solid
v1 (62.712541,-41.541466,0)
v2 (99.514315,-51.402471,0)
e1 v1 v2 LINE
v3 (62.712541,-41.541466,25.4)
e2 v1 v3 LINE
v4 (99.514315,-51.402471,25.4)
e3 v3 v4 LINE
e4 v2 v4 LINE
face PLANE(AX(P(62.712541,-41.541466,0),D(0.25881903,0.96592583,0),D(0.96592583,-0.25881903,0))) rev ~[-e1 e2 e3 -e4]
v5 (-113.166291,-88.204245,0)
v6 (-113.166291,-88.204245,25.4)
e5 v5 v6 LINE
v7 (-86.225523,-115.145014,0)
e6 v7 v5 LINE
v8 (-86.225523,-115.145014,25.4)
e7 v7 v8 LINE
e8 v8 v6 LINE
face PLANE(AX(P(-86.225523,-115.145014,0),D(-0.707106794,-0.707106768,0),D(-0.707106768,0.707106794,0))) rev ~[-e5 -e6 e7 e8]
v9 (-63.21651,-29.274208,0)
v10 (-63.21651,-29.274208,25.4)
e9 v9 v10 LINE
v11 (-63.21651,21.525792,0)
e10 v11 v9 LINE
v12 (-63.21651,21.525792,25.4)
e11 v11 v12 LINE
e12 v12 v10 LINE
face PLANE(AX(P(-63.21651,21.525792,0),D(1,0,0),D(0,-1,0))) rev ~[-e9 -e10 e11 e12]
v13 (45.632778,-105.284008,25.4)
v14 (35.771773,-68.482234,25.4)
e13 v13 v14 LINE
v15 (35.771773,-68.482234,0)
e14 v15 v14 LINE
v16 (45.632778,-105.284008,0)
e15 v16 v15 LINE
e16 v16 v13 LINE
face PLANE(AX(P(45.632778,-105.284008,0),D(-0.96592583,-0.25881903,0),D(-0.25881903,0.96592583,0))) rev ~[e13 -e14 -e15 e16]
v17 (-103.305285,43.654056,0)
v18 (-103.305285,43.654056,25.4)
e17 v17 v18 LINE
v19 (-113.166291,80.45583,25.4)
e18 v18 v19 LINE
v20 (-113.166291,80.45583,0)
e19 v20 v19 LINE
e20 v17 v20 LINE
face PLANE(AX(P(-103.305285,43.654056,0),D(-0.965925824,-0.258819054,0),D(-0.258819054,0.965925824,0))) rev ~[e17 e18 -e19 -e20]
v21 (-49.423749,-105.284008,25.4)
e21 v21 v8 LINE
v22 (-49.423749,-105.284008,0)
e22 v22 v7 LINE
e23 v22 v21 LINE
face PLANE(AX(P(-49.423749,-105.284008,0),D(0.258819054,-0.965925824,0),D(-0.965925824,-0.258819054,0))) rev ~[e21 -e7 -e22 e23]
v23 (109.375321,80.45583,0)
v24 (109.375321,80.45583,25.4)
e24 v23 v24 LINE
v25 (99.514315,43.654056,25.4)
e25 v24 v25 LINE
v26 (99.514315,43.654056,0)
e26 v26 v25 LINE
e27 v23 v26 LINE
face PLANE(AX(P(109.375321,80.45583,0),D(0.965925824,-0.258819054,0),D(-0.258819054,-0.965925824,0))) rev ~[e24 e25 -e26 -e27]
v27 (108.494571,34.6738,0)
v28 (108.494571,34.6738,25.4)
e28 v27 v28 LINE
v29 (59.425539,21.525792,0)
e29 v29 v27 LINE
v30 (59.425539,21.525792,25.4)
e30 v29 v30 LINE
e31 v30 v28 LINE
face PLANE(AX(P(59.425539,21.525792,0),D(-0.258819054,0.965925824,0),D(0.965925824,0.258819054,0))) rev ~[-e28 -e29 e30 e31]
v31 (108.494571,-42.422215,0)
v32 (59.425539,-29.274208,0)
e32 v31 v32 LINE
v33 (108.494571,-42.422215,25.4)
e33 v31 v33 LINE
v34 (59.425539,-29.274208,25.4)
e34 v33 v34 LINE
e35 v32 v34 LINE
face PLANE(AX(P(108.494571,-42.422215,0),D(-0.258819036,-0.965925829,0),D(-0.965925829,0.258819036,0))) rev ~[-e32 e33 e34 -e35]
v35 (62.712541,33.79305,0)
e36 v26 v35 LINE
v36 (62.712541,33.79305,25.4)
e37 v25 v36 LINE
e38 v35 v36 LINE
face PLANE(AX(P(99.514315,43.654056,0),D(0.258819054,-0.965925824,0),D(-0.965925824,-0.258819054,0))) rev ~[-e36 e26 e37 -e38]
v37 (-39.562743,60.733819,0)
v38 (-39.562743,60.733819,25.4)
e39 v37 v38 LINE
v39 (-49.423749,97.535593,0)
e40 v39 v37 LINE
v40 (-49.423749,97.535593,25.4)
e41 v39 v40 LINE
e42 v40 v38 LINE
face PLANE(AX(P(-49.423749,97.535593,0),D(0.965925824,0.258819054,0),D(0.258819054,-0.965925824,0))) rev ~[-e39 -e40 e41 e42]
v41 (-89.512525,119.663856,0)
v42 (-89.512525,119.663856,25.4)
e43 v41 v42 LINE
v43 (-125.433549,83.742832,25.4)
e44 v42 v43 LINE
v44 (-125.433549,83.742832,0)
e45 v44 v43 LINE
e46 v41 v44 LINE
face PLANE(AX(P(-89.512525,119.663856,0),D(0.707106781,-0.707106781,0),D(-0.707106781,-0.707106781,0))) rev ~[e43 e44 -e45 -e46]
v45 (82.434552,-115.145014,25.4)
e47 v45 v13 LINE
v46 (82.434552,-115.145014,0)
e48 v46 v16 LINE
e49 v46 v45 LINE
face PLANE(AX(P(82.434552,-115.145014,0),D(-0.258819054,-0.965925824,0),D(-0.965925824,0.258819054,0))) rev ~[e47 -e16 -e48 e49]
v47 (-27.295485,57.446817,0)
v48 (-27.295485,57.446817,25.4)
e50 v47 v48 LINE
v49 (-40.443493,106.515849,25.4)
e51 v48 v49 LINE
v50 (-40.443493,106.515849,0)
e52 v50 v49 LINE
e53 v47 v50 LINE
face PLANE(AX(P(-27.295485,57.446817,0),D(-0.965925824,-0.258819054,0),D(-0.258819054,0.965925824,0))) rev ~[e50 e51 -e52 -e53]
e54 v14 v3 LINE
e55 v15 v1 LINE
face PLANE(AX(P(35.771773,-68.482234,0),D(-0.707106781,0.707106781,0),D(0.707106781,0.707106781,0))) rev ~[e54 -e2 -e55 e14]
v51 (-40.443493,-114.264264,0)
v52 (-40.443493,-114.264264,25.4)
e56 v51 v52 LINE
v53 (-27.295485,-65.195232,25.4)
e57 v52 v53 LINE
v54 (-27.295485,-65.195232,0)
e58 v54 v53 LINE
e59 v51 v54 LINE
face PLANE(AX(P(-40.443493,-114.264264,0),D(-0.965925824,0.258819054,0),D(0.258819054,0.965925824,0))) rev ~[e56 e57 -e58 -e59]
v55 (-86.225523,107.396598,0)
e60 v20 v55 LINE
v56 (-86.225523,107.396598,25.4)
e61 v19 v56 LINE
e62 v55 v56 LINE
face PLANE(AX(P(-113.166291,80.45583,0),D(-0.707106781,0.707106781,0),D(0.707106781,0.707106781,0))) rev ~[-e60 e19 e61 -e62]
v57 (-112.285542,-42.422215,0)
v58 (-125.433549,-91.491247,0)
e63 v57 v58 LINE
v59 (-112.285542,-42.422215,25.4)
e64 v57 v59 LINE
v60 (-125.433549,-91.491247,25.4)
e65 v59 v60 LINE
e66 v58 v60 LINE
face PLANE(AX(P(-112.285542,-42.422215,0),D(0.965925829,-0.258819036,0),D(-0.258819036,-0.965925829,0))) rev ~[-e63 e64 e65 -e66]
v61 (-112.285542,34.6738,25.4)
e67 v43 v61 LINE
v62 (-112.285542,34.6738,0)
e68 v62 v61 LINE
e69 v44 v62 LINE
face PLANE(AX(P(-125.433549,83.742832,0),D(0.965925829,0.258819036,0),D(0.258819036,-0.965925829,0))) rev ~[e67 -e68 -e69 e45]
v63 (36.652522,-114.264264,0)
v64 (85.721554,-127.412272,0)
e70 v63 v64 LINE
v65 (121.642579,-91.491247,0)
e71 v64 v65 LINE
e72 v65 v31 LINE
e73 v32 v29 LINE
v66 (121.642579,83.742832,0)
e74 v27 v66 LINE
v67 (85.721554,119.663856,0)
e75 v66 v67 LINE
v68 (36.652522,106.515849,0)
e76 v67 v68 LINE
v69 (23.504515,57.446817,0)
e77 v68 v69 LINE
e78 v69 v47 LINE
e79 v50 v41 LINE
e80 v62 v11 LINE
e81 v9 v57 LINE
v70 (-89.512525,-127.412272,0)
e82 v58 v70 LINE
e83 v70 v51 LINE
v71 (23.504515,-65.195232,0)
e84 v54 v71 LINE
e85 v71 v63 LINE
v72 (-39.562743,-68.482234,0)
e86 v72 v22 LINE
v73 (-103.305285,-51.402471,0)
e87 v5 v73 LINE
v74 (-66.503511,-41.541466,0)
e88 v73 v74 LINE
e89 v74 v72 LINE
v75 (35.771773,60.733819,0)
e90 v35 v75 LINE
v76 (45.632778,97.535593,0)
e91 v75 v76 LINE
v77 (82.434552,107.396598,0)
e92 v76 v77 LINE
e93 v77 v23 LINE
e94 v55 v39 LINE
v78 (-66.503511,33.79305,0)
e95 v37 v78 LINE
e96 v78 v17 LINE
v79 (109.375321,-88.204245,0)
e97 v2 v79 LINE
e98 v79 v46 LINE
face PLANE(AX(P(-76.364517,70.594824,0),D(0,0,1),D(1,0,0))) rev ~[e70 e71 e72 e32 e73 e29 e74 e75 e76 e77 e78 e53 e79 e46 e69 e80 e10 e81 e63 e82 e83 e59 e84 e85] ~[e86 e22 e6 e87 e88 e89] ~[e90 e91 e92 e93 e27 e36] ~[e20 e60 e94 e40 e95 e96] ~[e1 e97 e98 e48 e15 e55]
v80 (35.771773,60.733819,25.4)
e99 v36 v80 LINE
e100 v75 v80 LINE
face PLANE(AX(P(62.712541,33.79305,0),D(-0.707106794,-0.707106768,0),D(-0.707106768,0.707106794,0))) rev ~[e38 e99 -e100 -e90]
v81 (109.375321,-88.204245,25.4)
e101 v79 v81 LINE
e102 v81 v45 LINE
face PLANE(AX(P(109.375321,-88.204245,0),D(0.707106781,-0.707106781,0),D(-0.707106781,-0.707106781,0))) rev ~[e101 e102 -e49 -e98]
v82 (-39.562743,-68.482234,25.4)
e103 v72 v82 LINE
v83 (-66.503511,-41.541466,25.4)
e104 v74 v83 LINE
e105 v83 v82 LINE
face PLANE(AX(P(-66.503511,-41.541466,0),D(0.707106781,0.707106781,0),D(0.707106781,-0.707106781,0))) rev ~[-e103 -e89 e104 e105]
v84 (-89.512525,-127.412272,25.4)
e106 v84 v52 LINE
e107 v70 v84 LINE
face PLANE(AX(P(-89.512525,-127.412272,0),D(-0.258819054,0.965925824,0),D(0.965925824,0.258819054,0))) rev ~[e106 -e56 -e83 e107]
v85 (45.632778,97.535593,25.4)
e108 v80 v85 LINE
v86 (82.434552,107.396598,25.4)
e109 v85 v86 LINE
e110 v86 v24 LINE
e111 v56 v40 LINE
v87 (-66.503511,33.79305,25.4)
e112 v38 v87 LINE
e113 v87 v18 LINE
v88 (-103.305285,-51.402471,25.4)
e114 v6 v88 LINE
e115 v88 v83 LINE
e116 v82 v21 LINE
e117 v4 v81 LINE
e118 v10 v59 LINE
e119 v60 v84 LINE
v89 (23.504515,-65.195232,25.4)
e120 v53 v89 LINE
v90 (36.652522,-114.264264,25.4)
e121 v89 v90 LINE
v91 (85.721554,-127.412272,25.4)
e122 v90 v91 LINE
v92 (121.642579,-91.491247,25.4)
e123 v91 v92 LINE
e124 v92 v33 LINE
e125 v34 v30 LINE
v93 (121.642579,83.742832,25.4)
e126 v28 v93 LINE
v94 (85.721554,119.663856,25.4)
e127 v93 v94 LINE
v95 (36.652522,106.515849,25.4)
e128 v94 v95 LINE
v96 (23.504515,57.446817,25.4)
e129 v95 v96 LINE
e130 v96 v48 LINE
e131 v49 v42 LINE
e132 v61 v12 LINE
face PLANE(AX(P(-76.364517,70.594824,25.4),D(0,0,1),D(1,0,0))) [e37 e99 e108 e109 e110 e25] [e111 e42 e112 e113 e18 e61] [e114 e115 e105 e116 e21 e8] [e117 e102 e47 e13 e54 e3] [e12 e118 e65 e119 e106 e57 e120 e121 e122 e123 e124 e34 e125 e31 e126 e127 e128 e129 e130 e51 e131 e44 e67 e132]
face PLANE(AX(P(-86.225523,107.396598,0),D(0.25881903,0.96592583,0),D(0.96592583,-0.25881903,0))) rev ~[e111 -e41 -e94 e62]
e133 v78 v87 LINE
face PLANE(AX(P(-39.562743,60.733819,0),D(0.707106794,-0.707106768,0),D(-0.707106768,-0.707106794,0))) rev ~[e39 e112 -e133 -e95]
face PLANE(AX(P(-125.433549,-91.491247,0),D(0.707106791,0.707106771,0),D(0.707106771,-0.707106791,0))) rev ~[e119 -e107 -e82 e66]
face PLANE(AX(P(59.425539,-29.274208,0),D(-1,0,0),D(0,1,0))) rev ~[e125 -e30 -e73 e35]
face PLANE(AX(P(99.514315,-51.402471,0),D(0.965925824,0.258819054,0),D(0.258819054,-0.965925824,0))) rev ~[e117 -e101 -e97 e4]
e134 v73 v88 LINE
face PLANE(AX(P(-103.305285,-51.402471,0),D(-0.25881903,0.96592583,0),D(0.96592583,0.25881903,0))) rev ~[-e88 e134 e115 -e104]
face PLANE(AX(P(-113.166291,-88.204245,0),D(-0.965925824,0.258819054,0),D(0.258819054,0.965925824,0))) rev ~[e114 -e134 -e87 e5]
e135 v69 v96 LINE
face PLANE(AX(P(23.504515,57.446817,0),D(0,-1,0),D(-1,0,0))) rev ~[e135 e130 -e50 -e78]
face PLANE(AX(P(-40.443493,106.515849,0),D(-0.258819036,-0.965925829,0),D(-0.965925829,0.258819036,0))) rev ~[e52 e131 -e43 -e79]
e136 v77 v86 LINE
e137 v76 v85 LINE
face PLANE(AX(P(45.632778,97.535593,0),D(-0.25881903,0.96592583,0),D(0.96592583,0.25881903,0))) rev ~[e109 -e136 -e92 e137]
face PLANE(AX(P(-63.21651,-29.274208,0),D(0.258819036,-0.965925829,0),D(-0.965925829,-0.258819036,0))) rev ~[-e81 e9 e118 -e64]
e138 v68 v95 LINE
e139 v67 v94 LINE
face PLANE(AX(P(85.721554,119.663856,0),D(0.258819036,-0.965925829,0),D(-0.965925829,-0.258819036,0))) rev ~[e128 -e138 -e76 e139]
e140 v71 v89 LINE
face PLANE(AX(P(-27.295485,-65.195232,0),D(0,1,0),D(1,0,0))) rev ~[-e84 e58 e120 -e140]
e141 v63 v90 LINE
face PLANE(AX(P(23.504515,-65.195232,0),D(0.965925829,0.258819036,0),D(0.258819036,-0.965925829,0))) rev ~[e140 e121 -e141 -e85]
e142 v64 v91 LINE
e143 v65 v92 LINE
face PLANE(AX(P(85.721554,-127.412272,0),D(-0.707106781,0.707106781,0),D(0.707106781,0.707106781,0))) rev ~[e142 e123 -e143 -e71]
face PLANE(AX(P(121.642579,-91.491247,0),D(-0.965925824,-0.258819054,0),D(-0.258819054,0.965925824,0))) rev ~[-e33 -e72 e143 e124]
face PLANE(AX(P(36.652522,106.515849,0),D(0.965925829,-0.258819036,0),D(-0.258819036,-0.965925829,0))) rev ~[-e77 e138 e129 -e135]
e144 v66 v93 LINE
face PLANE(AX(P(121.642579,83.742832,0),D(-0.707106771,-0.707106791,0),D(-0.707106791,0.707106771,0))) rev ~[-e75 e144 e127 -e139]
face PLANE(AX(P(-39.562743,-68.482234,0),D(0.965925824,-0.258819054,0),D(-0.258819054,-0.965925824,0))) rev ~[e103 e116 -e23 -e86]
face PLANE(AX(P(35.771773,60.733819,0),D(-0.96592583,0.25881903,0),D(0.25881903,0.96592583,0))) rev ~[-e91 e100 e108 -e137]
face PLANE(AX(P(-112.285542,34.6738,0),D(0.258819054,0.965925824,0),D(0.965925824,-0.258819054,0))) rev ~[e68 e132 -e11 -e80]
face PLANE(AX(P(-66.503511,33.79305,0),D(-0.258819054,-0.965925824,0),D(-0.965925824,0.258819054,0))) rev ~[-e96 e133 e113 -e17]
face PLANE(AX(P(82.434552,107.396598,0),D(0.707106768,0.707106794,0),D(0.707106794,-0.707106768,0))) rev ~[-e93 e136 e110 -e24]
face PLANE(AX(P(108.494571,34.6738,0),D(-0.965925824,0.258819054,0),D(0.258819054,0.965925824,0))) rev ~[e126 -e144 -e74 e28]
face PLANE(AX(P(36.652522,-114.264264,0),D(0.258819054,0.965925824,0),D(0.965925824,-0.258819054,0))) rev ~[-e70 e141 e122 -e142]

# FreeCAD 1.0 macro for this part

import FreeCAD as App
import Part
import Sketcher

V = App.Vector
Q = App.Units.Quantity


def add_polygon(sketch, points):
    """Adds a closed chain of lines whose ends are joined by coincident constraints."""
    first, n = sketch.GeometryCount, len(points)
    for a, b in zip(points, points[1:] + points[:1]):
        sketch.addGeometry(Part.LineSegment(App.Vector(*a, 0), App.Vector(*b, 0)), False)
    for i in range(n):
        sketch.addConstraint(Sketcher.Constraint("Coincident", first + i, 2, first + (i + 1) % n, 1))

doc = App.newDocument("Part")
body = doc.addObject("PartDesign::Body", "Body")

sketch1 = body.newObject("Sketcher::SketchObject", "Sketch")
sketch1.AttachmentSupport = (doc.getObject("XY_Plane"), [""])
sketch1.MapMode = "FlatFace"
add_polygon(sketch1, [(-112.285542, 34.6738), (-63.21651, 21.525792), (-63.21651, -29.274208), (-112.285542, -42.422215), (-125.433549, -91.491247), (-89.512525, -127.412272), (-40.443493, -114.264264), (-27.295485, -65.195232), (23.504515, -65.195232), (36.652522, -114.264264), (85.721554, -127.412272), (121.642579, -91.491247), (108.494571, -42.422215), (59.425539, -29.274208), (59.425539, 21.525792), (108.494571, 34.6738), (121.642579, 83.742832), (85.721554, 119.663856), (36.652522, 106.515849), (23.504515, 57.446817), (-27.295485, 57.446817), (-40.443493, 106.515849), (-89.512525, 119.663856), (-125.433549, 83.742832)])
add_polygon(sketch1, [(-86.225523, -115.145014), (-113.166291, -88.204245), (-103.305285, -51.402471), (-66.503511, -41.541466), (-39.562743, -68.482234), (-49.423749, -105.284008)])
add_polygon(sketch1, [(45.632778, -105.284008), (35.771773, -68.482234), (62.712541, -41.541466), (99.514315, -51.402471), (109.375321, -88.204245), (82.434552, -115.145014)])
add_polygon(sketch1, [(-113.166291, 80.45583), (-86.225523, 107.396598), (-49.423749, 97.535593), (-39.562743, 60.733819), (-66.503511, 33.79305), (-103.305285, 43.654056)])
add_polygon(sketch1, [(35.771773, 60.733819), (45.632778, 97.535593), (82.434552, 107.396598), (109.375321, 80.45583), (99.514315, 43.654056), (62.712541, 33.79305)])
sketch1.addConstraint(Sketcher.Constraint("Vertical", 1))
sketch1.addConstraint(Sketcher.Constraint("Horizontal", 7))
sketch1.addConstraint(Sketcher.Constraint("Vertical", 13))
sketch1.addConstraint(Sketcher.Constraint("Horizontal", 19))
sketch1.addConstraint(Sketcher.Constraint("Perpendicular", 0, 3))
sketch1.addConstraint(Sketcher.Constraint("Parallel", 2, 5))
sketch1.addConstraint(Sketcher.Constraint("Parallel", 3, 6))
sketch1.addConstraint(Sketcher.Constraint("Perpendicular", 5, 8))
sketch1.addConstraint(Sketcher.Constraint("Perpendicular", 6, 9))
sketch1.addConstraint(Sketcher.Constraint("Perpendicular", 4, 10))
sketch1.addConstraint(Sketcher.Constraint("Parallel", 8, 11))
sketch1.addConstraint(Sketcher.Constraint("Parallel", 9, 12))
sketch1.addConstraint(Sketcher.Constraint("Perpendicular", 11, 14))
sketch1.addConstraint(Sketcher.Constraint("Perpendicular", 12, 15))
sketch1.addConstraint(Sketcher.Constraint("Perpendicular", 10, 16))
sketch1.addConstraint(Sketcher.Constraint("Parallel", 14, 17))
sketch1.addConstraint(Sketcher.Constraint("Parallel", 15, 18))
sketch1.addConstraint(Sketcher.Constraint("Perpendicular", 17, 20))
sketch1.addConstraint(Sketcher.Constraint("Perpendicular", 18, 21))
sketch1.addConstraint(Sketcher.Constraint("Perpendicular", 16, 22))
sketch1.addConstraint(Sketcher.Constraint("Parallel", 20, 23))
sketch1.addConstraint(Sketcher.Constraint("Perpendicular", 22, 24))
sketch1.addConstraint(Sketcher.Constraint("Perpendicular", 21, 25))
sketch1.addConstraint(Sketcher.Constraint("Perpendicular", 23, 26))
sketch1.addConstraint(Sketcher.Constraint("Parallel", 24, 27))
sketch1.addConstraint(Sketcher.Constraint("Parallel", 25, 28))
sketch1.addConstraint(Sketcher.Constraint("Parallel", 26, 29))
sketch1.addConstraint(Sketcher.Constraint("Perpendicular", 29, 30))
sketch1.addConstraint(Sketcher.Constraint("Perpendicular", 27, 31))
sketch1.addConstraint(Sketcher.Constraint("Perpendicular", 28, 32))
sketch1.addConstraint(Sketcher.Constraint("Parallel", 30, 33))
sketch1.addConstraint(Sketcher.Constraint("Parallel", 31, 34))
sketch1.addConstraint(Sketcher.Constraint("Parallel", 32, 35))
sketch1.addConstraint(Sketcher.Constraint("Parallel", 34, 36))
sketch1.addConstraint(Sketcher.Constraint("Parallel", 35, 37))
sketch1.addConstraint(Sketcher.Constraint("Parallel", 33, 38))
sketch1.addConstraint(Sketcher.Constraint("Parallel", 36, 39))
sketch1.addConstraint(Sketcher.Constraint("Parallel", 37, 40))
sketch1.addConstraint(Sketcher.Constraint("Parallel", 38, 41))
sketch1.addConstraint(Sketcher.Constraint("Perpendicular", 40, 42))
sketch1.addConstraint(Sketcher.Constraint("Perpendicular", 41, 43))
sketch1.addConstraint(Sketcher.Constraint("Perpendicular", 39, 44))
sketch1.addConstraint(Sketcher.Constraint("Parallel", 42, 45))
sketch1.addConstraint(Sketcher.Constraint("Parallel", 43, 46))
sketch1.addConstraint(Sketcher.Constraint("Parallel", 44, 47))
sketch1.addConstraint(Sketcher.Constraint("Horizontal", 5, 2, 8, 2))
sketch1.addConstraint(Sketcher.Constraint("Horizontal", 4, 2, 9, 2))
sketch1.addConstraint(Sketcher.Constraint("Horizontal", 3, 2, 10, 2))
sketch1.addConstraint(Sketcher.Constraint("Horizontal", 2, 2, 11, 2))
sketch1.addConstraint(Sketcher.Constraint("Horizontal", 1, 2, 12, 2))
sketch1.addConstraint(Sketcher.Constraint("Horizontal", 0, 2, 13, 2))
sketch1.addConstraint(Sketcher.Constraint("Horizontal", 17, 2, 20, 2))
sketch1.addConstraint(Sketcher.Constraint("Horizontal", 16, 2, 21, 2))
sketch1.addConstraint(Sketcher.Constraint("Horizontal", 15, 2, 22, 2))
sketch1.addConstraint(Sketcher.Constraint("Horizontal", 14, 2, 23, 2))
sketch1.addConstraint(Sketcher.Constraint("Horizontal", 27, 2, 30, 2))
sketch1.addConstraint(Sketcher.Constraint("Horizontal", 26, 2, 31, 2))
sketch1.addConstraint(Sketcher.Constraint("Horizontal", 25, 2, 32, 2))
sketch1.addConstraint(Sketcher.Constraint("Horizontal", 24, 2, 33, 2))
sketch1.addConstraint(Sketcher.Constraint("Horizontal", 29, 2, 34, 2))
sketch1.addConstraint(Sketcher.Constraint("Horizontal", 37, 2, 42, 2))
sketch1.addConstraint(Sketcher.Constraint("Horizontal", 36, 2, 43, 2))
sketch1.addConstraint(Sketcher.Constraint("Horizontal", 41, 2, 44, 2))
sketch1.addConstraint(Sketcher.Constraint("Horizontal", 40, 2, 45, 2))
sketch1.addConstraint(Sketcher.Constraint("Horizontal", 39, 2, 46, 2))
sketch1.addConstraint(Sketcher.Constraint("Vertical", 11, 2, 14, 2))
sketch1.addConstraint(Sketcher.Constraint("Vertical", 10, 2, 15, 2))
sketch1.addConstraint(Sketcher.Constraint("Vertical", 9, 2, 16, 2))
sketch1.addConstraint(Sketcher.Constraint("Vertical", 8, 2, 17, 2))
sketch1.addConstraint(Sketcher.Constraint("Vertical", 7, 2, 18, 2))
sketch1.addConstraint(Sketcher.Constraint("Vertical", 6, 2, 19, 2))
sketch1.addConstraint(Sketcher.Constraint("Vertical", 5, 2, 20, 2))
sketch1.addConstraint(Sketcher.Constraint("Vertical", 29, 2, 36, 2))
sketch1.addConstraint(Sketcher.Constraint("Vertical", 28, 2, 37, 2))
sketch1.addConstraint(Sketcher.Constraint("Vertical", 27, 2, 38, 2))
sketch1.addConstraint(Sketcher.Constraint("Vertical", 26, 2, 39, 2))
sketch1.addConstraint(Sketcher.Constraint("Vertical", 25, 2, 40, 2))
sketch1.addConstraint(Sketcher.Constraint("Vertical", 35, 2, 42, 2))
sketch1.addConstraint(Sketcher.Constraint("Equal", 19, 1))
sketch1.addConstraint(Sketcher.Constraint("Equal", 2, 3))
sketch1.addConstraint(Sketcher.Constraint("Equal", 3, 4))
sketch1.addConstraint(Sketcher.Constraint("Equal", 4, 5))
sketch1.addConstraint(Sketcher.Constraint("Equal", 5, 6))
sketch1.addConstraint(Sketcher.Constraint("Equal", 24, 25))
sketch1.addConstraint(Sketcher.Constraint("Equal", 25, 26))
sketch1.addConstraint(Sketcher.Constraint("Equal", 26, 27))
sketch1.addConstraint(Sketcher.Constraint("DistanceX", 7, 1, 7, 2, Q("2 in")))
sketch1.addConstraint(Sketcher.Constraint("Distance", 0, Q("2 in")))
sketch1.addConstraint(Sketcher.Constraint("Angle", 0, Q("-15.000001 deg")))
sketch1.addConstraint(Sketcher.Constraint("Distance", 24, Q("1.5 in")))
sketch1.addConstraint(Sketcher.Constraint("DistanceY", -1, 1, 14, 2, Q("34.6738 mm")))
sketch1.addConstraint(Sketcher.Constraint("DistanceX", 24, 2, 5, 2, Q("72.722798 mm")))
sketch1.addConstraint(Sketcher.Constraint("DistanceY", 19, 2, 38, 2, Q("3.287002 mm")))
sketch1.addConstraint(Sketcher.Constraint("DistanceX", 42, 2, 15, 2, Q("76.009801 mm")))
sketch1.addConstraint(Sketcher.Constraint("DistanceX", 0, 2, -1, 1, Q("63.21651 mm")))
sketch1.addConstraint(Sketcher.Constraint("DistanceY", 25, 2, -1, 1, Q("51.402471 mm")))
pad1 = body.newObject("PartDesign::Pad", "Pad")
pad1.Profile = sketch1
pad1.Length = Q("1 in")

doc.recompute()
